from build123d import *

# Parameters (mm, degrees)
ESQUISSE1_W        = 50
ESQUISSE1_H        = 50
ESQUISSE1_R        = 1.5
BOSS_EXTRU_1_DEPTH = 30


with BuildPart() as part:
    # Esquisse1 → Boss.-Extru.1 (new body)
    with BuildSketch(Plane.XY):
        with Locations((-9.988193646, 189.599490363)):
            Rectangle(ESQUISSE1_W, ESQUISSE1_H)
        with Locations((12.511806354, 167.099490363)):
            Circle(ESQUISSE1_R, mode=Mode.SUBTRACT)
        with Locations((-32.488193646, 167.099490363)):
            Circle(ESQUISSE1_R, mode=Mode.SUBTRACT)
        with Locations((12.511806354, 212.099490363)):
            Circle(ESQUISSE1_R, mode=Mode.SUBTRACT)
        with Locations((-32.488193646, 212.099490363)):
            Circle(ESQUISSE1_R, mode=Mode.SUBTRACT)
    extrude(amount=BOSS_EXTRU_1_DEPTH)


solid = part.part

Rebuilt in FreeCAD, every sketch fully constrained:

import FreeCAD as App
import Part
import Sketcher


def add_polygon(sketch, points):
    """Adds a closed chain of lines whose ends are joined by coincident constraints."""
    first, n = sketch.GeometryCount, len(points)
    for a, b in zip(points, points[1:] + points[:1]):
        sketch.addGeometry(Part.LineSegment(App.Vector(*a, 0), App.Vector(*b, 0)), False)
    for i in range(n):
        sketch.addConstraint(Sketcher.Constraint("Coincident", first + i, 2, first + (i + 1) % n, 1))

doc = App.newDocument("Part")
params = doc.addObject("Spreadsheet::Sheet", "Params")
for row, (alias, value) in enumerate([
    ("sketch1_diameter", "3 mm"),
    ("sketch1_width", "50 mm"),
    ("pad1_length", "30 mm"),
], start=1):
    params.set(f"A{row}", alias)
    params.set(f"B{row}", "=" + value)
    params.setAlias(f"B{row}", alias)

body = doc.addObject("PartDesign::Body", "Body")

# Sketch on XY plane
sketch1 = doc.addObject("Sketcher::SketchObject", "Sketch")
body.addObject(sketch1)
sketch1.AttachmentSupport = (doc.XY_Plane, [""])
sketch1.MapMode = "FlatFace"
add_polygon(sketch1, [(-34.988194, 214.59949), (-34.988194, 164.59949), (15.011806, 164.59949), (15.011806, 214.59949)])  # lines 0-3
sketch1.addGeometry(Part.Circle(App.Vector(-32.488194, 167.09949, 0), App.Vector(0, 0, 1), 1.5), False)  # 4
sketch1.addGeometry(Part.Circle(App.Vector(12.511806, 167.09949, 0), App.Vector(0, 0, 1), 1.5), False)  # 5
sketch1.addGeometry(Part.Circle(App.Vector(-32.488194, 212.09949, 0), App.Vector(0, 0, 1), 1.5), False)  # 6
sketch1.addGeometry(Part.Circle(App.Vector(12.511806, 212.09949, 0), App.Vector(0, 0, 1), 1.5), False)  # 7
sketch1.addConstraint(Sketcher.Constraint("Vertical", 0))
sketch1.addConstraint(Sketcher.Constraint("Horizontal", 1))
sketch1.addConstraint(Sketcher.Constraint("Vertical", 2))
sketch1.addConstraint(Sketcher.Constraint("Horizontal", 3))
sketch1.addConstraint(Sketcher.Constraint("Equal", 4, 5))
sketch1.addConstraint(Sketcher.Constraint("Equal", 5, 6))
sketch1.addConstraint(Sketcher.Constraint("Equal", 6, 7))
sketch1.addConstraint(Sketcher.Constraint("Horizontal", 4, 3, 5, 3))
sketch1.addConstraint(Sketcher.Constraint("Horizontal", 6, 3, 7, 3))
sketch1.addConstraint(Sketcher.Constraint("Vertical", 4, 3, 6, 3))
sketch1.addConstraint(Sketcher.Constraint("Vertical", 5, 3, 7, 3))
sketch1.addConstraint(Sketcher.Constraint("Equal", 3, 0))
sketch1.addConstraint(Sketcher.Constraint("Diameter", 4, 3.0))
sketch1.addConstraint(Sketcher.Constraint("DistanceX", 1, 1, 1, 2, 50.0))
sketch1.addConstraint(Sketcher.Constraint("DistanceX", 4, 3, 5, 3, 45.0))
sketch1.addConstraint(Sketcher.Constraint("DistanceY", 4, 3, 6, 3, 45.0))
sketch1.addConstraint(Sketcher.Constraint("DistanceX", 0, 2, 4, 3, 2.5))
sketch1.addConstraint(Sketcher.Constraint("DistanceY", 0, 2, 4, 3, 2.5))
sketch1.addConstraint(Sketcher.Constraint("DistanceY", -1, 1, 4, 3, 167.09949))
sketch1.addConstraint(Sketcher.Constraint("DistanceX", 4, 3, -1, 1, 32.488194))
sketch1.setExpression("Constraints[16]", "Params.sketch1_diameter")
sketch1.setExpression("Constraints[17]", "Params.sketch1_width")
pad1 = doc.addObject("PartDesign::Pad", "Pad")
body.addObject(pad1)
pad1.Profile = sketch1
pad1.setExpression("Length", "Params.pad1_length")

doc.recompute()
